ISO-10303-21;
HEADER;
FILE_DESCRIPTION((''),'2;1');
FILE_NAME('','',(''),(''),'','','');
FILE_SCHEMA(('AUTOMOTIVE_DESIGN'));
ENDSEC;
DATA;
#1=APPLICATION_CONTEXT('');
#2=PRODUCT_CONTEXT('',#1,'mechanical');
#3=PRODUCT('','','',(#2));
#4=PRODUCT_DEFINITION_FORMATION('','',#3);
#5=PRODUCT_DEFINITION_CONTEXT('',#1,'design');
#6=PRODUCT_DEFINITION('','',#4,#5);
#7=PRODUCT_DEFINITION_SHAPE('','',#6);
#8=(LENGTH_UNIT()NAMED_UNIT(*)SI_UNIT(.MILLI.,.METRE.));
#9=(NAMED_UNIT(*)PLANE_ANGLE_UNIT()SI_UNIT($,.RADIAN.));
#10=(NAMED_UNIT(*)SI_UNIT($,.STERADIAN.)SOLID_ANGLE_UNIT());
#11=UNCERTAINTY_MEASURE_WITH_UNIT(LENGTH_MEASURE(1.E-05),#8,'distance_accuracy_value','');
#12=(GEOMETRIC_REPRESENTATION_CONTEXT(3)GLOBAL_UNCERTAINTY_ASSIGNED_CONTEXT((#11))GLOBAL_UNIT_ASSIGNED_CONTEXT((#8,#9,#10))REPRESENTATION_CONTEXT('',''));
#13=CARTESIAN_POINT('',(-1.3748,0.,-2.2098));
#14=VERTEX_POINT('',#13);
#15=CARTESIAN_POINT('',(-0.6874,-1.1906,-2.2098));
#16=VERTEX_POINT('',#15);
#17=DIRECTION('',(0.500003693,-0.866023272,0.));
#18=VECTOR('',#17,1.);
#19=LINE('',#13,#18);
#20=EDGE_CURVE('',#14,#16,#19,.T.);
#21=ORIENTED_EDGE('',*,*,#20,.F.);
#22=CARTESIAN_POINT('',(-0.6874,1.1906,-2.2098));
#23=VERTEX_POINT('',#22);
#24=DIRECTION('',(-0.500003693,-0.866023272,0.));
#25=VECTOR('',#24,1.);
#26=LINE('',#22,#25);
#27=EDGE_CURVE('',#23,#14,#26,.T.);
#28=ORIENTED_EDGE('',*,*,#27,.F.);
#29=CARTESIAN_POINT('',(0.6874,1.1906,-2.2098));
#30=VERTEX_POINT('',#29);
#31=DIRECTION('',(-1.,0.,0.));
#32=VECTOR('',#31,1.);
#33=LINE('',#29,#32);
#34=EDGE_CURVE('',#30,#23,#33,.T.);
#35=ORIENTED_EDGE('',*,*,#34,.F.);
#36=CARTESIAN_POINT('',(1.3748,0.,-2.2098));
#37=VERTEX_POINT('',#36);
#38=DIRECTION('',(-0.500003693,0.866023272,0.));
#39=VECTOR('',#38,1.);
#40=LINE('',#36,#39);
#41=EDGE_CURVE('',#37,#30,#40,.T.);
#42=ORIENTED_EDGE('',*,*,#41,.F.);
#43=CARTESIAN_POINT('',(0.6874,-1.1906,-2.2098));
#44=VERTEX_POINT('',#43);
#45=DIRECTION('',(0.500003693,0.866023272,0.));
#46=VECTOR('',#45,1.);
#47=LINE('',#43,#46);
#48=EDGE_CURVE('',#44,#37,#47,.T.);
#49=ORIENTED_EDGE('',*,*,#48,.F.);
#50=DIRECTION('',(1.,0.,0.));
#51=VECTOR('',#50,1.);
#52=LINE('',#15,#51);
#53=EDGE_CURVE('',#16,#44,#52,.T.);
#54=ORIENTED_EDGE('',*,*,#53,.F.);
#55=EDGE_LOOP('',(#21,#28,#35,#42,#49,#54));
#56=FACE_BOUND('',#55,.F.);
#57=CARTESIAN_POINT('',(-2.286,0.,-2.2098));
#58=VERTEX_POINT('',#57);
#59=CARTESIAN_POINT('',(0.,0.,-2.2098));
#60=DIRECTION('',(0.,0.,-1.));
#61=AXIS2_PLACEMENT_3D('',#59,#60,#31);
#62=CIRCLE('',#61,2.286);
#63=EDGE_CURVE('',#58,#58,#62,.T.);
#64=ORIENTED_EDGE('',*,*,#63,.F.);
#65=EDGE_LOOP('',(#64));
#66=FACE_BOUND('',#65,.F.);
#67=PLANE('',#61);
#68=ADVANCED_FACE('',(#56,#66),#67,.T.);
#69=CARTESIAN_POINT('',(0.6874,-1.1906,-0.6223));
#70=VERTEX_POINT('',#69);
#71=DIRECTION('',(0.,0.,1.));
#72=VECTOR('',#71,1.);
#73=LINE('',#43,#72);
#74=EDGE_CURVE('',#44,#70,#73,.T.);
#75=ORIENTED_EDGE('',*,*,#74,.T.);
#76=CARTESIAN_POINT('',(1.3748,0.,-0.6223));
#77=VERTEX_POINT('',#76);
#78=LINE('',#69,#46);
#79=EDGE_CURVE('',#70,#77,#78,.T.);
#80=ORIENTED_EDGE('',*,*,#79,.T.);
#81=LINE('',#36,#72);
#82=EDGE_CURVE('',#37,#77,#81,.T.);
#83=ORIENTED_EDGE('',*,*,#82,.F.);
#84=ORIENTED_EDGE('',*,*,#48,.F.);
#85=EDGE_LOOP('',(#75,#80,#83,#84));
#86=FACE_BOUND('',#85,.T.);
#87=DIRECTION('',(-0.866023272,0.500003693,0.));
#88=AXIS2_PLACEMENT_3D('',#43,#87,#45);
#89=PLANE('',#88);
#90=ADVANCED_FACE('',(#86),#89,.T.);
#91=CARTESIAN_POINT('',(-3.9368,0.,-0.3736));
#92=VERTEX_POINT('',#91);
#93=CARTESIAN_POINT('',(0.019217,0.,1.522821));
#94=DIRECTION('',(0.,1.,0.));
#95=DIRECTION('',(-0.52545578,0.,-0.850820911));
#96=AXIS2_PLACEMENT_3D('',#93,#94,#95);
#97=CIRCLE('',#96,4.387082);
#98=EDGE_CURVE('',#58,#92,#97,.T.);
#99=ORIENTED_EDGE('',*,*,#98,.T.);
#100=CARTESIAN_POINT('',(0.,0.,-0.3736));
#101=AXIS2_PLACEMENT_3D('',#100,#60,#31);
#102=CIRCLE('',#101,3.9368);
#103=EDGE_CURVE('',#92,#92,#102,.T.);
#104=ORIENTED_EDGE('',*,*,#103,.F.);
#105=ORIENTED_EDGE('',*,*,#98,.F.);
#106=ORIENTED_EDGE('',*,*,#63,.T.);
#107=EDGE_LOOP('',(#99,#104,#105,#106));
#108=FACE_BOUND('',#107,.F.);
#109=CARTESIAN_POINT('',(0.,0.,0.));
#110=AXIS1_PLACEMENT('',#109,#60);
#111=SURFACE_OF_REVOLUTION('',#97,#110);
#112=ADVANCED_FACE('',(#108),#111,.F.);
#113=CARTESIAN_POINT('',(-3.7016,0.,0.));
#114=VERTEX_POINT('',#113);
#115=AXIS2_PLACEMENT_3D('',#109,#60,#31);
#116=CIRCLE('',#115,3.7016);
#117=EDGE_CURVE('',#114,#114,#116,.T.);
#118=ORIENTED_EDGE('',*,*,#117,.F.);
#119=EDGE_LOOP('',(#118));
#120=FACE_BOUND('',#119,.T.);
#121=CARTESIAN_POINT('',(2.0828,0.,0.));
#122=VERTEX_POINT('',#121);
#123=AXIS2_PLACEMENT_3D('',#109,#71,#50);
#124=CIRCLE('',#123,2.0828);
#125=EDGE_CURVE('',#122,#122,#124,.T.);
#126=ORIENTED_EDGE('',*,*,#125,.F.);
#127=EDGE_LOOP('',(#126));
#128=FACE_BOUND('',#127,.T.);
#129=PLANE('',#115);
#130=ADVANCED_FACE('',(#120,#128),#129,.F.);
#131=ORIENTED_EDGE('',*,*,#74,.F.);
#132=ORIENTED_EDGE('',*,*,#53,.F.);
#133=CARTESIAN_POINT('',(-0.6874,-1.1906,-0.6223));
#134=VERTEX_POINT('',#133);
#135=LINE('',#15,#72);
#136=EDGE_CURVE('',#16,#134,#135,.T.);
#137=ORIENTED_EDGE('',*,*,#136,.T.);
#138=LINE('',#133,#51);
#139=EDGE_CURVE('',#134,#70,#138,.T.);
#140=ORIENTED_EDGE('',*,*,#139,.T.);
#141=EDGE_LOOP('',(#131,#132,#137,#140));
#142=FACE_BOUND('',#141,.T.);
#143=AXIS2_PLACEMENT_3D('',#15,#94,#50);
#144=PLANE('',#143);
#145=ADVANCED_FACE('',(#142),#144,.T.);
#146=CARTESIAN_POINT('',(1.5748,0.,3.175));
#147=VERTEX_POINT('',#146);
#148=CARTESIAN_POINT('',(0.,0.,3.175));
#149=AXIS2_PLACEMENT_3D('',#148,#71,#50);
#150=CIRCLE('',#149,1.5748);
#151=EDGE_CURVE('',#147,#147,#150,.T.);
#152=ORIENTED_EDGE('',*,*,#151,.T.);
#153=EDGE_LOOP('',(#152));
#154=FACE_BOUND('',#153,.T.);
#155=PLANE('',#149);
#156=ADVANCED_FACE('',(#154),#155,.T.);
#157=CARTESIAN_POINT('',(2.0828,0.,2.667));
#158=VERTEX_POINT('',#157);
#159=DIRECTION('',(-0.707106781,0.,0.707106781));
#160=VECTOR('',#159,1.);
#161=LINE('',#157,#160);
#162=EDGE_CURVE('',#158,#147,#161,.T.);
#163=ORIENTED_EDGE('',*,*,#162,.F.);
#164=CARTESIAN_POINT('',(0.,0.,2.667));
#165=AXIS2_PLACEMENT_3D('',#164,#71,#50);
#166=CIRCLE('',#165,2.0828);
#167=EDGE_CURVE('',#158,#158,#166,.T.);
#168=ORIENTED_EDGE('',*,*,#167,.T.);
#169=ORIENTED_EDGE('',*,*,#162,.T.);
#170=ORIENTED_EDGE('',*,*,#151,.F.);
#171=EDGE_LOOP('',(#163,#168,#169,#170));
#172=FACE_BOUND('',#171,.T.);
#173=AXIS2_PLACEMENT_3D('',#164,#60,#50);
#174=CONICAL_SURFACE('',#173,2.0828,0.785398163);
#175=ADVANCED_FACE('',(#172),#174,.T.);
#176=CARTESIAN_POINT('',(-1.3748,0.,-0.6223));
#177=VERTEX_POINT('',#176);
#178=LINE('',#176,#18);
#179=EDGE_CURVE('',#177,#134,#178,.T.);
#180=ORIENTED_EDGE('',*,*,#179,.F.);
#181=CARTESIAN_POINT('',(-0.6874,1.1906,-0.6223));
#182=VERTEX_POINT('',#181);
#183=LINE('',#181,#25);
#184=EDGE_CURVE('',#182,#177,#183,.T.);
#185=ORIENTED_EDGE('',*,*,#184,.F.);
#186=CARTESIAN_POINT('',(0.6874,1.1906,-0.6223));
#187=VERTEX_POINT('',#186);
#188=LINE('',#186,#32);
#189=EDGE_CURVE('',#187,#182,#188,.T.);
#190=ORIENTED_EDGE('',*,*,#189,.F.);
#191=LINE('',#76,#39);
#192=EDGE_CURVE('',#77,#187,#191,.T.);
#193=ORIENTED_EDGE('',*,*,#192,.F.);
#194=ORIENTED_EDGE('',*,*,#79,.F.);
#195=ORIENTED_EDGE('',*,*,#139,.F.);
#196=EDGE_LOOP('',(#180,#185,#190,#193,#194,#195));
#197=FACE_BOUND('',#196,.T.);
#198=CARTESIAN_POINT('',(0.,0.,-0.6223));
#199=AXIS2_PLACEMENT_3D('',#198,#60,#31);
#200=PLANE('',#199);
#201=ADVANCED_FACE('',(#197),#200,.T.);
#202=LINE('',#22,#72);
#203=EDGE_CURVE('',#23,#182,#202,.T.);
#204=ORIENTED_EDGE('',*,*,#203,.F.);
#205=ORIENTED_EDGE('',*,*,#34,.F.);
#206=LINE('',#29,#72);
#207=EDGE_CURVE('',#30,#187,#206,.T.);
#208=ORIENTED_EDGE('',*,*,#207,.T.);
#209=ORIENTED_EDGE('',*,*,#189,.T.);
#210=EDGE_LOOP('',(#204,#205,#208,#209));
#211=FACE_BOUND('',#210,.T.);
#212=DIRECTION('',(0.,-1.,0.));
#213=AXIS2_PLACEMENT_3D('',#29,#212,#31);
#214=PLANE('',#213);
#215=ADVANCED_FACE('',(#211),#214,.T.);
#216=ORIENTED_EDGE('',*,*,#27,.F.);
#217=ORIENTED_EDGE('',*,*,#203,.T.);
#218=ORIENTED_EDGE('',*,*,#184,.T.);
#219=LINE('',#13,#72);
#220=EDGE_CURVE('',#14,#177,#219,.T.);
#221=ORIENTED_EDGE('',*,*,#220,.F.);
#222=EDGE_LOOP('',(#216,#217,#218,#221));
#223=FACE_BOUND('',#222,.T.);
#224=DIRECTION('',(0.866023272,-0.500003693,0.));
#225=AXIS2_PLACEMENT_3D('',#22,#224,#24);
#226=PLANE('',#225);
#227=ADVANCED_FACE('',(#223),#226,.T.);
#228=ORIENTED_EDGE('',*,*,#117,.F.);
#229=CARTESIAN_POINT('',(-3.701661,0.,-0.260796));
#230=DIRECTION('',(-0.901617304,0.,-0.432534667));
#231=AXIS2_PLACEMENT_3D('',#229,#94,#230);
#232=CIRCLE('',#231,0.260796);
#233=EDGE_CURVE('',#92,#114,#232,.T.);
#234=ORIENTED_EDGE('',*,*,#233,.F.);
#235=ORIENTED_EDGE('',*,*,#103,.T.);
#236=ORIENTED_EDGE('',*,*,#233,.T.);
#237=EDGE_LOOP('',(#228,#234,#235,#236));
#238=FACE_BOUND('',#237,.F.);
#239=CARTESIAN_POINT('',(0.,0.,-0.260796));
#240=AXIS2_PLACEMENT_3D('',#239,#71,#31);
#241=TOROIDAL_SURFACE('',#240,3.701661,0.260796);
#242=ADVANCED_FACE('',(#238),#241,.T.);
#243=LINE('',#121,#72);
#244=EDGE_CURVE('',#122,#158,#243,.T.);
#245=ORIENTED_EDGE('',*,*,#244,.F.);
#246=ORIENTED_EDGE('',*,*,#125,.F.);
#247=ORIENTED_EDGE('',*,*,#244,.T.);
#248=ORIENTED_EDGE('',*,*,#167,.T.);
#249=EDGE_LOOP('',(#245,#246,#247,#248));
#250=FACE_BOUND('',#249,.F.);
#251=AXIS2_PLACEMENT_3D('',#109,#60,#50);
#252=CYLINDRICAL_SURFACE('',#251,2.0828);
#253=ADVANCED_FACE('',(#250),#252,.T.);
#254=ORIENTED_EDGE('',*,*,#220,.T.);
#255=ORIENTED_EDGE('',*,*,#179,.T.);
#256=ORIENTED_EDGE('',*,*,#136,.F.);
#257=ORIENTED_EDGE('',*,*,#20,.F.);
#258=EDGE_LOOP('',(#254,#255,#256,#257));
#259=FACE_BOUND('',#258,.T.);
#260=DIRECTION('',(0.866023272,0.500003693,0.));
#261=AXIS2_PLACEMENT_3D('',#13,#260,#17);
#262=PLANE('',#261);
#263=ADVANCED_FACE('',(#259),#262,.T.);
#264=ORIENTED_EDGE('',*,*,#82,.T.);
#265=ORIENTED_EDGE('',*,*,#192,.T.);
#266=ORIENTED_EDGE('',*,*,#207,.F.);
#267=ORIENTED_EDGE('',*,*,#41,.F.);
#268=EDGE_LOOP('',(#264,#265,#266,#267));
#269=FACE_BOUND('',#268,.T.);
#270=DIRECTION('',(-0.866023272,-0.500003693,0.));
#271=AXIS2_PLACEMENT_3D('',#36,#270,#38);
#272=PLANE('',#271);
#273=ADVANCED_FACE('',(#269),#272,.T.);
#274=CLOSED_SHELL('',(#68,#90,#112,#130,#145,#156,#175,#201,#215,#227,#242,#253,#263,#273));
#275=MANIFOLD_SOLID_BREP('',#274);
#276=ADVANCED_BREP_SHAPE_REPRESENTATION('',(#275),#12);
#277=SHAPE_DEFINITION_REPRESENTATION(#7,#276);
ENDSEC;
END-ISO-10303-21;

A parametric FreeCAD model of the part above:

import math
import FreeCAD as App
import Part
import Sketcher
from FreeCAD import Vector
Q = App.Units.Quantity


def edges_at(feature, points):
    """Names of the edges that pass closest to the given points."""
    edges = feature.Shape.Edges
    near = lambda p: min(range(len(edges)), key=lambda i: edges[i].distToShape(Part.Vertex(*p))[0])
    return sorted({f"Edge{near(p) + 1}" for p in points})

doc = App.newDocument("Part")
params = doc.addObject("Spreadsheet::Sheet", "Params")
for row, (alias, value) in enumerate([
    ("sketch1_diameter", "0.164 in"),
    ("pad1_length", "0.125 in"),
    ("sketch2_width", "0.09 in"),
    ("sketch2_height", "0.087 in"),
    ("revolution_angle", "360 deg"),
    ("pocket1_length", "0.0625 in"),
    ("chamfer_size", "0.02 in"),
], start=1):
    params.set(f"A{row}", alias)
    params.set(f"B{row}", "=" + value)
    params.setAlias(f"B{row}", alias)

body = doc.addObject("PartDesign::Body", "Body")

sketch1 = body.newObject("Sketcher::SketchObject", "Sketch")
sketch1.AttachmentSupport = (doc.getObject("XY_Plane"), [""])
sketch1.MapMode = "FlatFace"
sketch1.addGeometry(Part.Circle(Vector(0, 0, 0), Vector(0, 0, 1), 2.0828), False)
sketch1.addConstraint(Sketcher.Constraint("Coincident", 0, 3, -1, 1))
sketch1.addConstraint(Sketcher.Constraint("Diameter", 0, Q("0.164 in")))
sketch1.setExpression("Constraints[1]", "Params.sketch1_diameter")
pad1 = body.newObject("PartDesign::Pad", "Pad")
pad1.Profile = sketch1
pad1.setExpression("Length", "Params.pad1_length")

sketch2 = body.newObject("Sketcher::SketchObject", "Sketch001")
sketch2.AttachmentSupport = (doc.getObject("XZ_Plane"), [""])
sketch2.MapMode = "FlatFace"
sketch2.addGeometry(Part.LineSegment(Vector(-3.7016, 0, 0), Vector(0, 0, 0)), False)
sketch2.addGeometry(Part.LineSegment(Vector(0, 0, 0), Vector(0, -2.2098, 0)), False)
sketch2.addGeometry(Part.LineSegment(Vector(0, -2.2098, 0), Vector(-2.286, -2.2098, 0)), False)
sketch2.addGeometry(Part.ArcOfCircle(Part.Circle(Vector(0.0192, 1.5228, 0), Vector(0, 0, 1), 4.387055), math.radians(-154.388194), math.radians(-121.698881)), False)
sketch2.addGeometry(Part.ArcOfCircle(Part.Circle(Vector(-3.7016, -0.2608, 0), Vector(0, 0, 1), 0.26085), math.radians(90), math.radians(205.621996)), False)
sketch2.addConstraint(Sketcher.Constraint("Coincident", 0, 2, 1, 1))
sketch2.addConstraint(Sketcher.Constraint("Coincident", 1, 2, 2, 1))
sketch2.addConstraint(Sketcher.Constraint("Coincident", 2, 2, 3, 2))
sketch2.addConstraint(Sketcher.Constraint("Tangent", 3, 1, 4, 2))
sketch2.addConstraint(Sketcher.Constraint("Tangent", 4, 1, 0, 1))
sketch2.addConstraint(Sketcher.Constraint("Horizontal", 0))
sketch2.addConstraint(Sketcher.Constraint("Vertical", 1))
sketch2.addConstraint(Sketcher.Constraint("Horizontal", 2))
sketch2.addConstraint(Sketcher.Constraint("Coincident", 0, 2, -1, 1))
sketch2.addConstraint(Sketcher.Constraint("DistanceX", 2, 2, 2, 1, Q("0.09 in")))
sketch2.addConstraint(Sketcher.Constraint("DistanceY", 1, 2, 1, 1, Q("0.087 in")))
sketch2.addConstraint(Sketcher.Constraint("Radius", 3, 4.387))
sketch2.addConstraint(Sketcher.Constraint("Radius", 4, 0.2609))
sketch2.addConstraint(Sketcher.Constraint("DistanceX", 3, 1, -1, 1, Q("0.155 in")))
sketch2.setExpression("Constraints[9]", "Params.sketch2_width")
sketch2.setExpression("Constraints[10]", "Params.sketch2_height")
revolution = body.newObject("PartDesign::Revolution", "Revolution")
revolution.Profile = sketch2
revolution.ReferenceAxis = (sketch2, ["V_Axis"])
revolution.setExpression("Angle", "Params.revolution_angle")

sketch3 = body.newObject("Sketcher::SketchObject", "Sketch002")
sketch3.AttachmentSupport = (doc.getObject("XY_Plane"), [""])
sketch3.MapMode = "FlatFace"
sketch3.AttachmentOffset = App.Placement(Vector(0, 0, -0.087 * 25.4), App.Rotation())
sketch3.addGeometry(Part.LineSegment(Vector(-0.6874, 1.1906, 0), Vector(0.6874, 1.1906, 0)), False)
sketch3.addGeometry(Part.LineSegment(Vector(0.6874, 1.1906, 0), Vector(1.3748, 0, 0)), False)
sketch3.addGeometry(Part.LineSegment(Vector(1.3748, 0, 0), Vector(0.6874, -1.1906, 0)), False)
sketch3.addGeometry(Part.LineSegment(Vector(0.6874, -1.1906, 0), Vector(-0.6874, -1.1906, 0)), False)
sketch3.addGeometry(Part.LineSegment(Vector(-0.6874, -1.1906, 0), Vector(-1.3748, 0, 0)), False)
sketch3.addGeometry(Part.LineSegment(Vector(-1.3748, 0, 0), Vector(-0.6874, 1.1906, 0)), False)
sketch3.addConstraint(Sketcher.Constraint("Coincident", 0, 2, 1, 1))
sketch3.addConstraint(Sketcher.Constraint("Coincident", 1, 2, 2, 1))
sketch3.addConstraint(Sketcher.Constraint("Coincident", 2, 2, 3, 1))
sketch3.addConstraint(Sketcher.Constraint("Coincident", 3, 2, 4, 1))
sketch3.addConstraint(Sketcher.Constraint("Coincident", 4, 2, 5, 1))
sketch3.addConstraint(Sketcher.Constraint("Coincident", 5, 2, 0, 1))
sketch3.addConstraint(Sketcher.Constraint("Horizontal", 0))
sketch3.addConstraint(Sketcher.Constraint("Horizontal", 3))
sketch3.addConstraint(Sketcher.Constraint("Symmetric", 0, 2, 3, 2, -1, 1))
sketch3.addConstraint(Sketcher.Constraint("Symmetric", 1, 2, 4, 2, -1, 1))
sketch3.addConstraint(Sketcher.Constraint("PointOnObject", 1, 2, -1))
sketch3.addConstraint(Sketcher.Constraint("Parallel", 2, 5))
sketch3.addConstraint(Sketcher.Constraint("Vertical", 0, 2, 2, 2))
sketch3.addConstraint(Sketcher.Constraint("Angle", 1, Q("-59.9998 deg")))
sketch3.addConstraint(Sketcher.Constraint("DistanceY", 2, 2, 0, 2, Q("0.093748 in")))
sketch3.addConstraint(Sketcher.Constraint("DistanceX", 0, 1, 0, 2, 1.3748))
pocket1 = body.newObject("PartDesign::Pocket", "Pocket")
pocket1.Profile = sketch3
pocket1.setExpression("Length", "Params.pocket1_length")
pocket1.Reversed = True
doc.recompute()

chamfer = body.newObject("PartDesign::Chamfer", "Chamfer")
chamfer.Base = (pocket1, edges_at(pocket1, [(-2.083, 0, 3.175)]))
chamfer.setExpression("Size", "Params.chamfer_size")

doc.recompute()
